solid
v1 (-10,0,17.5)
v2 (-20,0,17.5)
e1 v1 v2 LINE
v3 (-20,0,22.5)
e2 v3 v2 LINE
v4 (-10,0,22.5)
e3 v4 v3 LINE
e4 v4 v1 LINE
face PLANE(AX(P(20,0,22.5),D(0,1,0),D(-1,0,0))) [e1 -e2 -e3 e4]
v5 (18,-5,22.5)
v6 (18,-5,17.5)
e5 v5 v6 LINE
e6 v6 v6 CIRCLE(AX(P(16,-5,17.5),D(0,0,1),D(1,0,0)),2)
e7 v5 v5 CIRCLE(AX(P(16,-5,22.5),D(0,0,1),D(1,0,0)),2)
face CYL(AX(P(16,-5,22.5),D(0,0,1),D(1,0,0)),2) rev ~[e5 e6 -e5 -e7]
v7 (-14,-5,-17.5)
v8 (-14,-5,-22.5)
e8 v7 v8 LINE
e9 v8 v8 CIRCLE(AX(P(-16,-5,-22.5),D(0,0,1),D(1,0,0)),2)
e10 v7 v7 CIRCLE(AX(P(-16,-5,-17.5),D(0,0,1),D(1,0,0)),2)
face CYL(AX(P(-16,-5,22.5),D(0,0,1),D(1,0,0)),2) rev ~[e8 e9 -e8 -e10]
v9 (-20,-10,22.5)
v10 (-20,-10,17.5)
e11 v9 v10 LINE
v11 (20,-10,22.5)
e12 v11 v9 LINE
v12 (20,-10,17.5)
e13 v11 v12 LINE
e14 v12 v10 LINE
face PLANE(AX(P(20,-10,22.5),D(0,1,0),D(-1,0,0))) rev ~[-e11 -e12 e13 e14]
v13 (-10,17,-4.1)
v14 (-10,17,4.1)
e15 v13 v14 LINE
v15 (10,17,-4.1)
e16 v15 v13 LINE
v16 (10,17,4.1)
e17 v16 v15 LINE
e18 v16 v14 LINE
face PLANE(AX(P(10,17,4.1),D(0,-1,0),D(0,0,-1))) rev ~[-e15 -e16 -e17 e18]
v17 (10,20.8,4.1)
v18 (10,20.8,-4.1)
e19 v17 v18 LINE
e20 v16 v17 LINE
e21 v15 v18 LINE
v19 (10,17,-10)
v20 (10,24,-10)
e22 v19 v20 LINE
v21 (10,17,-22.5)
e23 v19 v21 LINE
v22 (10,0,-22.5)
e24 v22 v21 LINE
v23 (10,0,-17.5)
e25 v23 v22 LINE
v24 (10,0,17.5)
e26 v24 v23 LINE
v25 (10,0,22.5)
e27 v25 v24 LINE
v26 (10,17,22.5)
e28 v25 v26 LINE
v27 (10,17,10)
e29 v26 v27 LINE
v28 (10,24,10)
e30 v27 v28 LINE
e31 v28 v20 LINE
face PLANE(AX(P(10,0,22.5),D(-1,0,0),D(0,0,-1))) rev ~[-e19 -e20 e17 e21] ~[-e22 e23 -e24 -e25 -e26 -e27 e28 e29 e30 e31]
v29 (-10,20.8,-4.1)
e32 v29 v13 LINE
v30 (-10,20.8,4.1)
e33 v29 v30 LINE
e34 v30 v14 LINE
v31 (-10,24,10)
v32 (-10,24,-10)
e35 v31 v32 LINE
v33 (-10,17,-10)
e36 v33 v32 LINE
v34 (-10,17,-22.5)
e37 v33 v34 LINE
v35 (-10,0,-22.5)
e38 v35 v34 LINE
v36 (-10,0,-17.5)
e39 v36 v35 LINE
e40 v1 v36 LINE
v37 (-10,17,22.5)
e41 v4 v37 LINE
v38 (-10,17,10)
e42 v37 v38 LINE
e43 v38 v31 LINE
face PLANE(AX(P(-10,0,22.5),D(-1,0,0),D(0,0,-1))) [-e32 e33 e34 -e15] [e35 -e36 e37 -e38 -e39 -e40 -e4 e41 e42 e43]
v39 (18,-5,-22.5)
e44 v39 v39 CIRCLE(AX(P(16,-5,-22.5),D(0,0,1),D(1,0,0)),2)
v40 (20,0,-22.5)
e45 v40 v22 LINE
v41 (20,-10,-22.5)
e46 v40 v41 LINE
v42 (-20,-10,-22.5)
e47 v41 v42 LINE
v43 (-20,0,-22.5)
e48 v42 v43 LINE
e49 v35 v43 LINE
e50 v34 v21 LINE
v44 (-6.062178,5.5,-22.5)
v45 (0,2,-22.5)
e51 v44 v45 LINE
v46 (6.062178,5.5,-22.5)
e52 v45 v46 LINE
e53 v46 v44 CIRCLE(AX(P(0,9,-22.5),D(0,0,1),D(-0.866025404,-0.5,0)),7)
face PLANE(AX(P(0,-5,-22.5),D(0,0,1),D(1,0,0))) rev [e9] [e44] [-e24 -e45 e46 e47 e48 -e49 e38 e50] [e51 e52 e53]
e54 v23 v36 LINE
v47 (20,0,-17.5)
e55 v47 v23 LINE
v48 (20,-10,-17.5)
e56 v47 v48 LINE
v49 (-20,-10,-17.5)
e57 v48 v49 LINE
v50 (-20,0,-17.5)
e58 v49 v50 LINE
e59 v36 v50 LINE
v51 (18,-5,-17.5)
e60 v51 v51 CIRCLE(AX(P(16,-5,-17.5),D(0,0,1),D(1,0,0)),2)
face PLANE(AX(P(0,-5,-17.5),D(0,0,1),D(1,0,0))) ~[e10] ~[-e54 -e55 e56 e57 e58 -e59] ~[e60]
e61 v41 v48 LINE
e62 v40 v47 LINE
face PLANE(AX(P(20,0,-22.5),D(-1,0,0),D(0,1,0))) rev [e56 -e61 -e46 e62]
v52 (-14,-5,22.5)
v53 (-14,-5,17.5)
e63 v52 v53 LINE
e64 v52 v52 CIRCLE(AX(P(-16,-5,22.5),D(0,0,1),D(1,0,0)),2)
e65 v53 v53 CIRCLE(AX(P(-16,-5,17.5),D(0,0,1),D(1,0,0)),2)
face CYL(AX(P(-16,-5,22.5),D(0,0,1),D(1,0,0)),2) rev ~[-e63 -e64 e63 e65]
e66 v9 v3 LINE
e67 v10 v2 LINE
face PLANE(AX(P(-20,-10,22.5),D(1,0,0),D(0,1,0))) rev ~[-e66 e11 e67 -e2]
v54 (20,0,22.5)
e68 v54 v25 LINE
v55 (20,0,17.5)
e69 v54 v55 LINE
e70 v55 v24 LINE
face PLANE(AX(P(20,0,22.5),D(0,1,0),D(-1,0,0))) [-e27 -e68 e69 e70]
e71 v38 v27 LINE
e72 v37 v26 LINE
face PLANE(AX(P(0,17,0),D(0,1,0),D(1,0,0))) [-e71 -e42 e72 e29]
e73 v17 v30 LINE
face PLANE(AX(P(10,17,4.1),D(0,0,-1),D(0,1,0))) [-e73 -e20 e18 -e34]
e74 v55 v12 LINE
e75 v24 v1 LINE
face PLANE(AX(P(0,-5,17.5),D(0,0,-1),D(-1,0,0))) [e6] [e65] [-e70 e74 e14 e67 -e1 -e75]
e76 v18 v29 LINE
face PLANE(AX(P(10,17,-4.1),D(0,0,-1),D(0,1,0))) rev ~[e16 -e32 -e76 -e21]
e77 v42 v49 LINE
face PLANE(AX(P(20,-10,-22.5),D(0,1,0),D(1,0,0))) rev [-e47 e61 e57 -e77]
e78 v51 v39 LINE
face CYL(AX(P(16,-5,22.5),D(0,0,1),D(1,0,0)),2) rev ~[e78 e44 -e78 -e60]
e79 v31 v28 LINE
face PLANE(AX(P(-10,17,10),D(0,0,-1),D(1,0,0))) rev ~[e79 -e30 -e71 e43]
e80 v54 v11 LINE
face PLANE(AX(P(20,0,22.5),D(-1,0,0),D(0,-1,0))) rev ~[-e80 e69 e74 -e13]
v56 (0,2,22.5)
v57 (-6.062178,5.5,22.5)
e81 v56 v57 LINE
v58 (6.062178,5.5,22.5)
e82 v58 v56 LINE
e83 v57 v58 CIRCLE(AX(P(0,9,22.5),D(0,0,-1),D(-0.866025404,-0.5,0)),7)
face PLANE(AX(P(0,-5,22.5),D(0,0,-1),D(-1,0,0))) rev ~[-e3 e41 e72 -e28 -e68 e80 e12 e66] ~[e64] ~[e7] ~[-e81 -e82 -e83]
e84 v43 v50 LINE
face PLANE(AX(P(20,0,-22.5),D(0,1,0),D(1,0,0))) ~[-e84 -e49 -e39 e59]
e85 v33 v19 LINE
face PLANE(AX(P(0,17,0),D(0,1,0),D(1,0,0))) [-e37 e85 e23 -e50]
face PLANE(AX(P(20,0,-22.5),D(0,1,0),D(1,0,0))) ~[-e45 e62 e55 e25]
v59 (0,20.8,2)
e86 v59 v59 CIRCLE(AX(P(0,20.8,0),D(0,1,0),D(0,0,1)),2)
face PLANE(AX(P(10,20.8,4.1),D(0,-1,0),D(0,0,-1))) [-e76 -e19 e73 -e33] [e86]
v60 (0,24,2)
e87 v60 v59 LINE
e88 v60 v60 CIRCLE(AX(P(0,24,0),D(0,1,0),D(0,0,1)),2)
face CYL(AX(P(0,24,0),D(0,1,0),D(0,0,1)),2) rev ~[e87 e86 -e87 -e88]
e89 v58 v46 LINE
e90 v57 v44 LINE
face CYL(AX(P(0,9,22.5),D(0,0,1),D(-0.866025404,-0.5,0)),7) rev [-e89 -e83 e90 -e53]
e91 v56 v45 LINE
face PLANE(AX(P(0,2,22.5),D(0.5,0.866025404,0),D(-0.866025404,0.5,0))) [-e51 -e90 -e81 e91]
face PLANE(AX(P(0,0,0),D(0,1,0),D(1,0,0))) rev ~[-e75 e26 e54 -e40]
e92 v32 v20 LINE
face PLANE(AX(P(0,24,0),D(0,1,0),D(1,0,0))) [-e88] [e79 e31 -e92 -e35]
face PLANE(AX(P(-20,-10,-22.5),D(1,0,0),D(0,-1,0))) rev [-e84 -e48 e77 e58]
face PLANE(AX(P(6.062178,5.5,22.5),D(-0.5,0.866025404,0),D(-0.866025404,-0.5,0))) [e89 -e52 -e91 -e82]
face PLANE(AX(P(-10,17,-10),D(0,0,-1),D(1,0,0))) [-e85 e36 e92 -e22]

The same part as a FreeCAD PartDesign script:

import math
import FreeCAD as App
import Part
import Sketcher

V = App.Vector
Q = App.Units.Quantity

doc = App.newDocument("Part")
body = doc.addObject("PartDesign::Body", "Body")

# Sketch on XZ plane
sketch1 = doc.addObject("Sketcher::SketchObject", "Sketch")
body.addObject(sketch1)
sketch1.AttachmentSupport = (doc.XZ_Plane, [""])
sketch1.MapMode = "FlatFace"
sketch1.addGeometry([
    Part.LineSegment(V(-10, -22, 0), V(-10, 22, 0)),
    Part.LineSegment(V(-10, 22, 0), V(10, 22, 0)),
    Part.LineSegment(V(10, 22, 0), V(10, -22, 0)),
    Part.LineSegment(V(10, -22, 0), V(-10, -22, 0)),
], False)
sketch1.addConstraint([
    Sketcher.Constraint("Coincident", 0, 2, 1, 1),
    Sketcher.Constraint("Coincident", 1, 2, 2, 1),
    Sketcher.Constraint("Coincident", 2, 2, 3, 1),
    Sketcher.Constraint("Coincident", 3, 2, 0, 1),
    Sketcher.Constraint("Vertical", 0),
    Sketcher.Constraint("Horizontal", 1),
    Sketcher.Constraint("Vertical", 2),
    Sketcher.Constraint("Horizontal", 3),
    Sketcher.Constraint("Symmetric", 0, 2, 2, 2, -1, 1),
    Sketcher.Constraint("DistanceX", 1, 1, 1, 2, Q("20 mm")),
    Sketcher.Constraint("DistanceY", 0, 1, 0, 2, Q("45 mm")),
])
pad1 = doc.addObject("PartDesign::Pad", "Pad")
body.addObject(pad1)
pad1.Profile = sketch1
pad1.Length = 17
pad1.Reversed = True

# Sketch on XY plane
sketch2 = doc.addObject("Sketcher::SketchObject", "Sketch001")
body.addObject(sketch2)
sketch2.AttachmentSupport = (doc.XY_Plane, [""])
sketch2.MapMode = "FlatFace"
sketch2.AttachmentOffset = App.Placement(V(0, 0, 22.5), App.Rotation())
sketch2.addGeometry([
    Part.LineSegment(V(-6, 6, 0), V(0, 2, 0)),
    Part.LineSegment(V(0, 2, 0), V(6, 6, 0)),
    Part.ArcOfCircle(Part.Circle(V(0, 9, 0), V(0, 0, 1), 7), math.radians(-30), math.radians(210)),
], False)
sketch2.addConstraint([
    Sketcher.Constraint("Coincident", 0, 2, 1, 1),
    Sketcher.Constraint("Coincident", 1, 2, 2, 1),
    Sketcher.Constraint("Coincident", 2, 2, 0, 1),
    Sketcher.Constraint("Symmetric", 1, 2, 2, 2, -2),
    Sketcher.Constraint("PointOnObject", 0, 2, -2),
    Sketcher.Constraint("Radius", 2, Q("7 mm")),
    Sketcher.Constraint("Angle", 0, Q("-30 deg")),
    Sketcher.Constraint("Distance", 0, Q("7 mm")),
    Sketcher.Constraint("DistanceY", -1, 1, 2, 3, Q("9 mm")),
])
pocket1 = doc.addObject("PartDesign::Pocket", "Pocket")
body.addObject(pocket1)
pocket1.Profile = sketch2
pocket1.Type = "ThroughAll"

# Sketch on XY plane
sketch3 = doc.addObject("Sketcher::SketchObject", "Sketch002")
body.addObject(sketch3)
sketch3.AttachmentSupport = (doc.XY_Plane, [""])
sketch3.MapMode = "FlatFace"
sketch3.AttachmentOffset = App.Placement(V(0, 0, 22.5), App.Rotation())
sketch3.addGeometry([
    Part.LineSegment(V(20, 0, 0), V(-20, 0, 0)),
    Part.LineSegment(V(-20, 0, 0), V(-20, -10, 0)),
    Part.LineSegment(V(-20, -10, 0), V(20, -10, 0)),
    Part.LineSegment(V(20, -10, 0), V(20, 0, 0)),
], False)
sketch3.addConstraint([
    Sketcher.Constraint("Coincident", 0, 2, 1, 1),
    Sketcher.Constraint("Coincident", 1, 2, 2, 1),
    Sketcher.Constraint("Coincident", 2, 2, 3, 1),
    Sketcher.Constraint("Coincident", 3, 2, 0, 1),
    Sketcher.Constraint("Horizontal", 0),
    Sketcher.Constraint("Vertical", 1),
    Sketcher.Constraint("Horizontal", 2),
    Sketcher.Constraint("Vertical", 3),
    Sketcher.Constraint("Symmetric", 0, 2, 3, 2, -1, 1),
    Sketcher.Constraint("DistanceX", 0, 2, 0, 1, Q("40 mm")),
    Sketcher.Constraint("DistanceY", 1, 2, 1, 1, Q("10 mm")),
])
pad2 = doc.addObject("PartDesign::Pad", "Pad001")
body.addObject(pad2)
pad2.Profile = sketch3
pad2.Length = 5
pad2.Reversed = True
doc.recompute()

mirrored = doc.addObject("PartDesign::Mirrored", "Mirrored")
body.addObject(mirrored)
mirrored.Originals = [pad2]
mirrored.MirrorPlane = (doc.XY_Plane, [""])
body.Tip = mirrored

# Sketch on XY plane
sketch4 = doc.addObject("Sketcher::SketchObject", "Sketch003")
body.addObject(sketch4)
sketch4.AttachmentSupport = (doc.XY_Plane, [""])
sketch4.MapMode = "FlatFace"
sketch4.AttachmentOffset = App.Placement(V(0, 0, 22.5), App.Rotation())
sketch4.addGeometry([
    Part.Circle(V(16, -5, 0), V(0, 0, 1), 2),
    Part.Circle(V(-16, -5, 0), V(0, 0, 1), 2),
], False)
sketch4.addConstraint([
    Sketcher.Constraint("Equal", 0, 1),
    Sketcher.Constraint("Symmetric", 0, 3, 1, 3, -2),
    Sketcher.Constraint("Diameter", 0, Q("4 mm")),
    Sketcher.Constraint("DistanceX", -1, 1, 0, 3, Q("16 mm")),
    Sketcher.Constraint("DistanceY", 0, 3, -1, 1, Q("5 mm")),
])
pocket2 = doc.addObject("PartDesign::Pocket", "Pocket001")
body.addObject(pocket2)
pocket2.Profile = sketch4
pocket2.Type = "ThroughAll"

# Sketch on XZ plane
sketch5 = doc.addObject("Sketcher::SketchObject", "Sketch004")
body.addObject(sketch5)
sketch5.AttachmentSupport = (doc.XZ_Plane, [""])
sketch5.MapMode = "FlatFace"
sketch5.AttachmentOffset = App.Placement(V(0, 0, -17), App.Rotation())
sketch5.addGeometry([
    Part.LineSegment(V(-10, -10, 0), V(-10, 10, 0)),
    Part.LineSegment(V(-10, 10, 0), V(10, 10, 0)),
    Part.LineSegment(V(10, 10, 0), V(10, -10, 0)),
    Part.LineSegment(V(10, -10, 0), V(-10, -10, 0)),
], False)
sketch5.addConstraint([
    Sketcher.Constraint("Coincident", 0, 2, 1, 1),
    Sketcher.Constraint("Coincident", 1, 2, 2, 1),
    Sketcher.Constraint("Coincident", 2, 2, 3, 1),
    Sketcher.Constraint("Coincident", 3, 2, 0, 1),
    Sketcher.Constraint("Vertical", 0),
    Sketcher.Constraint("Horizontal", 1),
    Sketcher.Constraint("Vertical", 2),
    Sketcher.Constraint("Horizontal", 3),
    Sketcher.Constraint("Symmetric", 0, 2, 2, 2, -1, 1),
    Sketcher.Constraint("Equal", 3, 0),
    Sketcher.Constraint("DistanceX", 1, 1, 1, 2, Q("20 mm")),
])
pad3 = doc.addObject("PartDesign::Pad", "Pad002")
body.addObject(pad3)
pad3.Profile = sketch5
pad3.Length = 7
pad3.Reversed = True

# Sketch on YZ plane
sketch6 = doc.addObject("Sketcher::SketchObject", "Sketch005")
body.addObject(sketch6)
sketch6.AttachmentSupport = (doc.YZ_Plane, [""])
sketch6.MapMode = "FlatFace"
sketch6.AttachmentOffset = App.Placement(V(0, 0, 10), App.Rotation())
sketch6.addGeometry([
    Part.LineSegment(V(20.8, 4.1, 0), V(17, 4.1, 0)),
    Part.LineSegment(V(17, 4.1, 0), V(17, -4.1, 0)),
    Part.LineSegment(V(17, -4.1, 0), V(20.8, -4.1, 0)),
    Part.LineSegment(V(20.8, -4.1, 0), V(20.8, 4.1, 0)),
], False)
sketch6.addConstraint([
    Sketcher.Constraint("Coincident", 0, 2, 1, 1),
    Sketcher.Constraint("Coincident", 1, 2, 2, 1),
    Sketcher.Constraint("Coincident", 2, 2, 3, 1),
    Sketcher.Constraint("Coincident", 3, 2, 0, 1),
    Sketcher.Constraint("Horizontal", 0),
    Sketcher.Constraint("Vertical", 1),
    Sketcher.Constraint("Horizontal", 2),
    Sketcher.Constraint("Vertical", 3),
    Sketcher.Constraint("DistanceX", 0, 2, 0, 1, Q("3.8 mm")),
    Sketcher.Constraint("DistanceY", 1, 2, 1, 1, Q("8.2 mm")),
    Sketcher.Constraint("DistanceX", -1, 1, 0, 2, Q("17 mm")),
    Sketcher.Constraint("DistanceY", -1, 1, 0, 2, Q("4.1 mm")),
])
pocket3 = doc.addObject("PartDesign::Pocket", "Pocket002")
body.addObject(pocket3)
pocket3.Profile = sketch6
pocket3.Type = "ThroughAll"

# Sketch on XZ plane
sketch7 = doc.addObject("Sketcher::SketchObject", "Sketch006")
body.addObject(sketch7)
sketch7.AttachmentSupport = (doc.XZ_Plane, [""])
sketch7.MapMode = "FlatFace"
sketch7.AttachmentOffset = App.Placement(V(0, 0, -24), App.Rotation())
sketch7.addGeometry(Part.Circle(V(0, 0, 0), V(0, 0, 1), 2), False)
sketch7.addConstraint([
    Sketcher.Constraint("Coincident", 0, 3, -1, 1),
    Sketcher.Constraint("Diameter", 0, Q("4 mm")),
])
pocket4 = doc.addObject("PartDesign::Pocket", "Pocket003")
body.addObject(pocket4)
pocket4.Profile = sketch7
pocket4.Type = "UpToFirst"
pocket4.Reversed = True

doc.recompute()
